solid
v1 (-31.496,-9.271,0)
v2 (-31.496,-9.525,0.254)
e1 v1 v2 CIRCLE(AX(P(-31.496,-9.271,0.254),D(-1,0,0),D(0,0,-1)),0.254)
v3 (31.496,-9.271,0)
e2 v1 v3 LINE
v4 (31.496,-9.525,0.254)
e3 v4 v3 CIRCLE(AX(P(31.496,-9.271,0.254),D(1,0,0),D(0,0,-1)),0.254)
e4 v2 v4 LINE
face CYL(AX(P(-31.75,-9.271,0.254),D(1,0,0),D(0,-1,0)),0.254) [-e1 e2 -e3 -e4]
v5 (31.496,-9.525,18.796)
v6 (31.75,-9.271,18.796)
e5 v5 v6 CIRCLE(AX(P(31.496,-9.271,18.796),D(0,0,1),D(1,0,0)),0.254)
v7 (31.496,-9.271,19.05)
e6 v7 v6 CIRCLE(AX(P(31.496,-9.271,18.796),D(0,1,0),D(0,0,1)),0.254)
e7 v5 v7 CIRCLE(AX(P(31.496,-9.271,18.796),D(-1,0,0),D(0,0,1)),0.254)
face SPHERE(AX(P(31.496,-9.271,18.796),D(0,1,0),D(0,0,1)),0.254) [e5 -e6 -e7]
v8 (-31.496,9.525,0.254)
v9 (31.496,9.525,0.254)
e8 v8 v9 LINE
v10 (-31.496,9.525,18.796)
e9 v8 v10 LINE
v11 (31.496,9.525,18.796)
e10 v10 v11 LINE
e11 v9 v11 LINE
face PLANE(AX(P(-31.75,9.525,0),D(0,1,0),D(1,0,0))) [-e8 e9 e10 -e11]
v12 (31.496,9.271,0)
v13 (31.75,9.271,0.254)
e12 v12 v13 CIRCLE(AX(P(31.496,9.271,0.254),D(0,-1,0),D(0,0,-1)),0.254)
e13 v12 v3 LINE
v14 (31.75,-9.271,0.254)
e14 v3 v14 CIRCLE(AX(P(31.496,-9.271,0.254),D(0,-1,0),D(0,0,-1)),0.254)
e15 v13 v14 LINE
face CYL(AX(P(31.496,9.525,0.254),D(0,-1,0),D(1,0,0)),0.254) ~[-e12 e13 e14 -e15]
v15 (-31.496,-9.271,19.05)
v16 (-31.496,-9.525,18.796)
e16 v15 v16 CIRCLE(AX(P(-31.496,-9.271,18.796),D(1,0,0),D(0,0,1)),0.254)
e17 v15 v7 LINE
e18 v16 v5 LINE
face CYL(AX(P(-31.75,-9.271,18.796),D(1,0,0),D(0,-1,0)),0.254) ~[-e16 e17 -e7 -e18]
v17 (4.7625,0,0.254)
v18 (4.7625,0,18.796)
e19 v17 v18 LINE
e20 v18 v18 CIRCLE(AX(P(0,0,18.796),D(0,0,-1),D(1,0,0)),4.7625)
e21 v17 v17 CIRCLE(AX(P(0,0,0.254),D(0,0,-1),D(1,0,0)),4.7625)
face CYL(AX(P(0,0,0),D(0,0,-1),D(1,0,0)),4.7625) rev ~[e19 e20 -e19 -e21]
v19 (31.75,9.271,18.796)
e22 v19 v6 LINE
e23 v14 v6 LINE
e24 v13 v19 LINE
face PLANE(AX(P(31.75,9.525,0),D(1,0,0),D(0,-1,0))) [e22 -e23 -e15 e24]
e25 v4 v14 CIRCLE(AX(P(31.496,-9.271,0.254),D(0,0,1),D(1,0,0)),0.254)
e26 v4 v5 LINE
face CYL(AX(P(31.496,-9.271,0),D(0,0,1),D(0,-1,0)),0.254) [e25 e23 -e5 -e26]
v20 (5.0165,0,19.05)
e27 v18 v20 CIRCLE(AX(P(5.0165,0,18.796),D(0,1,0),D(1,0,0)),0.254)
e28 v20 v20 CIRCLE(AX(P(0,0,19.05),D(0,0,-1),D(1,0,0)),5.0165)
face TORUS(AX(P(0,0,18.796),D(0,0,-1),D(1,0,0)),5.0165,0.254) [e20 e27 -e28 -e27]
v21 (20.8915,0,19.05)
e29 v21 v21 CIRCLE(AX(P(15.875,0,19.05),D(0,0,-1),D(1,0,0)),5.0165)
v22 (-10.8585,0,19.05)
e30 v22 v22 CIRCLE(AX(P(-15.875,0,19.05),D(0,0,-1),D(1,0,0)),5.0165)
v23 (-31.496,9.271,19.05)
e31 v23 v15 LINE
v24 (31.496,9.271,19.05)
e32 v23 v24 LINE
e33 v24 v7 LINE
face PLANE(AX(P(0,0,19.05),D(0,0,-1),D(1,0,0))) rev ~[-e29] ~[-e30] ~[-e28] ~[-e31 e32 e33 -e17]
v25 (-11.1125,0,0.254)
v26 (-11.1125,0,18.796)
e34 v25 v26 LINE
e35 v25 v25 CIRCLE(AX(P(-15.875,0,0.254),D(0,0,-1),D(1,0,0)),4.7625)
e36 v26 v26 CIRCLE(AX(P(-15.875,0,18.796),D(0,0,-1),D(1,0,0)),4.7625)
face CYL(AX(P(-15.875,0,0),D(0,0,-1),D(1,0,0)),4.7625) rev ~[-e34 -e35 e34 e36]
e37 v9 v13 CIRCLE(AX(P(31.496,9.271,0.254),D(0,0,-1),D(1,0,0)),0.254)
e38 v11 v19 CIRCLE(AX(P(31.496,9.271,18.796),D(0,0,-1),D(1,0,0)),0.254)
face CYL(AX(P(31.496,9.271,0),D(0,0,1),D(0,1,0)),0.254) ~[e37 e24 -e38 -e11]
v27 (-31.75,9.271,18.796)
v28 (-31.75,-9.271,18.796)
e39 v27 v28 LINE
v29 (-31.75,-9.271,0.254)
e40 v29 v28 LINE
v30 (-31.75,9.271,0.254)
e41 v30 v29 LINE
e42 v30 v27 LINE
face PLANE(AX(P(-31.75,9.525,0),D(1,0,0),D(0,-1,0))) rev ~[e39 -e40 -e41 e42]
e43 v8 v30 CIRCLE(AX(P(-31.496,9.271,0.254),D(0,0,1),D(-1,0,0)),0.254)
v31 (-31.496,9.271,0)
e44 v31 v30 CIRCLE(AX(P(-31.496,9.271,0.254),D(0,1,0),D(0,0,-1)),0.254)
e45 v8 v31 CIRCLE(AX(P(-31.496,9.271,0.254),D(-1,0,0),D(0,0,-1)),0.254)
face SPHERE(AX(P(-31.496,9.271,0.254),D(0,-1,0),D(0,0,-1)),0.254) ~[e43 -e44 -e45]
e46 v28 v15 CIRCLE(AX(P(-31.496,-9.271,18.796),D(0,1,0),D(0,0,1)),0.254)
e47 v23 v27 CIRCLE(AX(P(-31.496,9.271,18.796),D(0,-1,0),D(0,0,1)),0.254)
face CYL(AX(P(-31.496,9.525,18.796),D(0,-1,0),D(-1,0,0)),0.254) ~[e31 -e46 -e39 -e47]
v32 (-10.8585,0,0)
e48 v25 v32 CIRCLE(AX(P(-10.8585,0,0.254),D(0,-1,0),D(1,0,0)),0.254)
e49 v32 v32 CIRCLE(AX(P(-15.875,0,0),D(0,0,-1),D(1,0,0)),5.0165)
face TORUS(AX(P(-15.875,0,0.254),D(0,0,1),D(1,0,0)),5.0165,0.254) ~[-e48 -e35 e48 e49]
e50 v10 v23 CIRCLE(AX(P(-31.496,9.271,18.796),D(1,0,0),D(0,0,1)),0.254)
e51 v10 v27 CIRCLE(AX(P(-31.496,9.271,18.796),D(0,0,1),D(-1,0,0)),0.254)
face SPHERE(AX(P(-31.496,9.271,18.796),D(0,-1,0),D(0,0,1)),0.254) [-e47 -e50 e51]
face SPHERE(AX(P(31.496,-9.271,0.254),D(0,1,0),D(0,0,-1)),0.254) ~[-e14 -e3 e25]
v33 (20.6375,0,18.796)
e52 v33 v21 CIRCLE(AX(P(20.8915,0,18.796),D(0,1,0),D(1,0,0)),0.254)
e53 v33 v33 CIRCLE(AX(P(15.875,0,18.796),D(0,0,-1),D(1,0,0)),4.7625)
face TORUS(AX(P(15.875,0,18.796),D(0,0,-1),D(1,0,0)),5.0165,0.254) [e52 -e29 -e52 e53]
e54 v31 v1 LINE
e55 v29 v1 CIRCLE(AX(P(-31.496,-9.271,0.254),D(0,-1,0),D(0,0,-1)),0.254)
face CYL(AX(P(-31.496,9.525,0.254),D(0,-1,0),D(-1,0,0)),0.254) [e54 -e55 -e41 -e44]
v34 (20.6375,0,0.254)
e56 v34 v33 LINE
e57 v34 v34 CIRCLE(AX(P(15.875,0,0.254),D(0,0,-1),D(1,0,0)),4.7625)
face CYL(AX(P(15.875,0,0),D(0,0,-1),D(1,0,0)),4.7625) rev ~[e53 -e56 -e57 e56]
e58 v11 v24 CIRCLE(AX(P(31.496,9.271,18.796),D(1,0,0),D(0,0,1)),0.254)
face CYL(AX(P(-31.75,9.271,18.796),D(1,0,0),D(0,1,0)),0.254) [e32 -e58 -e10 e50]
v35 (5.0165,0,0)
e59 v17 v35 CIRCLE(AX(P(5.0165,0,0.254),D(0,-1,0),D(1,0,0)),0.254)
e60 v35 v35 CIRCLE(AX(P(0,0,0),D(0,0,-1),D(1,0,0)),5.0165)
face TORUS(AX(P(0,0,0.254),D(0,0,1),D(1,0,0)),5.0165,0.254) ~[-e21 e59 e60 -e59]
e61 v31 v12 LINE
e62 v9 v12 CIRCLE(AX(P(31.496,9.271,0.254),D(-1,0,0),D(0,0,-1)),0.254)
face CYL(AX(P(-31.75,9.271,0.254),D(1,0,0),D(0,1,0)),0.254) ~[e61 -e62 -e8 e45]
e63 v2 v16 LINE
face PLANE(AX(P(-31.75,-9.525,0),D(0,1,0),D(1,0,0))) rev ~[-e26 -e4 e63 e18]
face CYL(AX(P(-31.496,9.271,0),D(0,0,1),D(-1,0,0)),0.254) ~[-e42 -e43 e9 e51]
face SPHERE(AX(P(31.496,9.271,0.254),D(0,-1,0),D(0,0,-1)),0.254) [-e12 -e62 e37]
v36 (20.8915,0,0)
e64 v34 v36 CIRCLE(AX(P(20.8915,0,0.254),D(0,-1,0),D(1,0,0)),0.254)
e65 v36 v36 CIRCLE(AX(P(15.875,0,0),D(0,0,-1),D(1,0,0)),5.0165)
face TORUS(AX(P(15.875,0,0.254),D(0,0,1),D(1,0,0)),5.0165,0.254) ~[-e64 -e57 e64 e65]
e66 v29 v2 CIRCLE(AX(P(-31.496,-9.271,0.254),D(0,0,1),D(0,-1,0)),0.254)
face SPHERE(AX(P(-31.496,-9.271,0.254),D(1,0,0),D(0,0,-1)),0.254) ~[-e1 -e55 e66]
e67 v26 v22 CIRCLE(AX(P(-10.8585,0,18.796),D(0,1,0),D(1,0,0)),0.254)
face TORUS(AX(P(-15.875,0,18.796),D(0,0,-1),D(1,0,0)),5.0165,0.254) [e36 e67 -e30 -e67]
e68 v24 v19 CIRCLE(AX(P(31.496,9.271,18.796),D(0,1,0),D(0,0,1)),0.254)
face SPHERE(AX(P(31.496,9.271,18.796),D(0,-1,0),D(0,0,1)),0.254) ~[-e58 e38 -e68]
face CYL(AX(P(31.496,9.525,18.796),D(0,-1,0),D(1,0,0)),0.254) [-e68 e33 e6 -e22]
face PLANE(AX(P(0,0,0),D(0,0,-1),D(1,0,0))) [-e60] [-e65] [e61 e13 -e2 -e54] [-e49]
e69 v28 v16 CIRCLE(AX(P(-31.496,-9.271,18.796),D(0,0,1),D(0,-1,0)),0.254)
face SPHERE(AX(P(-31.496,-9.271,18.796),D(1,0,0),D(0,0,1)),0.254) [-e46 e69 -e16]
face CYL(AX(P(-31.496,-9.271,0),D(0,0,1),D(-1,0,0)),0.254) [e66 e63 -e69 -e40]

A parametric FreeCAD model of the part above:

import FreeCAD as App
import Part
import Sketcher

V = App.Vector
Q = App.Units.Quantity

doc = App.newDocument("Part")
params = doc.addObject("Spreadsheet::Sheet", "Params")
for row, (alias, value) in enumerate([
    ("sketch1_diameter", "0.375 in"),
    ("sketch1_width", "2.5 in"),
    ("sketch1_height", "0.75 in"),
    ("pad1_length", "0.75 in"),
    ("fillet_radius", "0.01 in"),
], start=1):
    params.set(f"A{row}", alias)
    params.set(f"B{row}", "=" + value)
    params.setAlias(f"B{row}", alias)

body = doc.addObject("PartDesign::Body", "Body")

# Sketch on XZ plane
sketch1 = body.newObject("Sketcher::SketchObject", "Sketch")
sketch1.AttachmentSupport = (doc.getObject("XZ_Plane"), [""])
sketch1.MapMode = "FlatFace"
sketch1.addGeometry(Part.LineSegment(V(-31.8, 9.5, 0), V(-31.8, -9.5, 0)), False)
sketch1.addGeometry(Part.LineSegment(V(-31.8, -9.5, 0), V(31.8, -9.5, 0)), False)
sketch1.addGeometry(Part.LineSegment(V(31.8, -9.5, 0), V(31.8, 9.5, 0)), False)
sketch1.addGeometry(Part.LineSegment(V(31.8, 9.5, 0), V(-31.8, 9.5, 0)), False)
sketch1.addGeometry(Part.Circle(V(-15.9, 0, 0), V(0, 0, 1), 4.8), False)
sketch1.addGeometry(Part.Circle(V(0, 0, 0), V(0, 0, 1), 4.8), False)
sketch1.addGeometry(Part.Circle(V(15.9, 0, 0), V(0, 0, 1), 4.8), False)
sketch1.addConstraint(Sketcher.Constraint("Coincident", 0, 2, 1, 1))
sketch1.addConstraint(Sketcher.Constraint("Coincident", 1, 2, 2, 1))
sketch1.addConstraint(Sketcher.Constraint("Coincident", 2, 2, 3, 1))
sketch1.addConstraint(Sketcher.Constraint("Coincident", 3, 2, 0, 1))
sketch1.addConstraint(Sketcher.Constraint("Vertical", 0))
sketch1.addConstraint(Sketcher.Constraint("Horizontal", 1))
sketch1.addConstraint(Sketcher.Constraint("Vertical", 2))
sketch1.addConstraint(Sketcher.Constraint("Horizontal", 3))
sketch1.addConstraint(Sketcher.Constraint("Coincident", 5, 3, -1, 1))
sketch1.addConstraint(Sketcher.Constraint("Equal", 4, 5))
sketch1.addConstraint(Sketcher.Constraint("Equal", 5, 6))
sketch1.addConstraint(Sketcher.Constraint("Symmetric", 4, 3, 6, 3, -1, 1))
sketch1.addConstraint(Sketcher.Constraint("Symmetric", 0, 2, 2, 2, -1, 1))
sketch1.addConstraint(Sketcher.Constraint("PointOnObject", 4, 3, -1))
sketch1.addConstraint(Sketcher.Constraint("Diameter", 4, Q("0.375 in")))
sketch1.addConstraint(Sketcher.Constraint("DistanceX", 1, 1, 1, 2, Q("2.5 in")))
sketch1.addConstraint(Sketcher.Constraint("DistanceY", 0, 2, 0, 1, Q("0.75 in")))
sketch1.addConstraint(Sketcher.Constraint("DistanceX", 4, 3, 6, 3, Q("1.25 in")))
sketch1.setExpression("Constraints[14]", "Params.sketch1_diameter")
sketch1.setExpression("Constraints[15]", "Params.sketch1_width")
sketch1.setExpression("Constraints[16]", "Params.sketch1_height")
pad1 = body.newObject("PartDesign::Pad", "Pad")
pad1.Profile = sketch1
pad1.setExpression("Length", "Params.pad1_length")
pad1.Reversed = True
doc.recompute()

fillet = body.newObject("PartDesign::Fillet", "Fillet")
fillet.Base = (pad1, ["Edge1"])
fillet.UseAllEdges = True
fillet.setExpression("Radius", "Params.fillet_radius")
body2 = doc.addObject("PartDesign::Body", "Body001")
doc.recompute()

body.Placement = App.Placement(V(0, 0, 0), App.Rotation(V(1, 0, 0), 90))
boolean = body2.newObject("PartDesign::Boolean", "Boolean")
boolean.Type = "Fuse"
boolean.addObjects([body])

doc.recompute()
